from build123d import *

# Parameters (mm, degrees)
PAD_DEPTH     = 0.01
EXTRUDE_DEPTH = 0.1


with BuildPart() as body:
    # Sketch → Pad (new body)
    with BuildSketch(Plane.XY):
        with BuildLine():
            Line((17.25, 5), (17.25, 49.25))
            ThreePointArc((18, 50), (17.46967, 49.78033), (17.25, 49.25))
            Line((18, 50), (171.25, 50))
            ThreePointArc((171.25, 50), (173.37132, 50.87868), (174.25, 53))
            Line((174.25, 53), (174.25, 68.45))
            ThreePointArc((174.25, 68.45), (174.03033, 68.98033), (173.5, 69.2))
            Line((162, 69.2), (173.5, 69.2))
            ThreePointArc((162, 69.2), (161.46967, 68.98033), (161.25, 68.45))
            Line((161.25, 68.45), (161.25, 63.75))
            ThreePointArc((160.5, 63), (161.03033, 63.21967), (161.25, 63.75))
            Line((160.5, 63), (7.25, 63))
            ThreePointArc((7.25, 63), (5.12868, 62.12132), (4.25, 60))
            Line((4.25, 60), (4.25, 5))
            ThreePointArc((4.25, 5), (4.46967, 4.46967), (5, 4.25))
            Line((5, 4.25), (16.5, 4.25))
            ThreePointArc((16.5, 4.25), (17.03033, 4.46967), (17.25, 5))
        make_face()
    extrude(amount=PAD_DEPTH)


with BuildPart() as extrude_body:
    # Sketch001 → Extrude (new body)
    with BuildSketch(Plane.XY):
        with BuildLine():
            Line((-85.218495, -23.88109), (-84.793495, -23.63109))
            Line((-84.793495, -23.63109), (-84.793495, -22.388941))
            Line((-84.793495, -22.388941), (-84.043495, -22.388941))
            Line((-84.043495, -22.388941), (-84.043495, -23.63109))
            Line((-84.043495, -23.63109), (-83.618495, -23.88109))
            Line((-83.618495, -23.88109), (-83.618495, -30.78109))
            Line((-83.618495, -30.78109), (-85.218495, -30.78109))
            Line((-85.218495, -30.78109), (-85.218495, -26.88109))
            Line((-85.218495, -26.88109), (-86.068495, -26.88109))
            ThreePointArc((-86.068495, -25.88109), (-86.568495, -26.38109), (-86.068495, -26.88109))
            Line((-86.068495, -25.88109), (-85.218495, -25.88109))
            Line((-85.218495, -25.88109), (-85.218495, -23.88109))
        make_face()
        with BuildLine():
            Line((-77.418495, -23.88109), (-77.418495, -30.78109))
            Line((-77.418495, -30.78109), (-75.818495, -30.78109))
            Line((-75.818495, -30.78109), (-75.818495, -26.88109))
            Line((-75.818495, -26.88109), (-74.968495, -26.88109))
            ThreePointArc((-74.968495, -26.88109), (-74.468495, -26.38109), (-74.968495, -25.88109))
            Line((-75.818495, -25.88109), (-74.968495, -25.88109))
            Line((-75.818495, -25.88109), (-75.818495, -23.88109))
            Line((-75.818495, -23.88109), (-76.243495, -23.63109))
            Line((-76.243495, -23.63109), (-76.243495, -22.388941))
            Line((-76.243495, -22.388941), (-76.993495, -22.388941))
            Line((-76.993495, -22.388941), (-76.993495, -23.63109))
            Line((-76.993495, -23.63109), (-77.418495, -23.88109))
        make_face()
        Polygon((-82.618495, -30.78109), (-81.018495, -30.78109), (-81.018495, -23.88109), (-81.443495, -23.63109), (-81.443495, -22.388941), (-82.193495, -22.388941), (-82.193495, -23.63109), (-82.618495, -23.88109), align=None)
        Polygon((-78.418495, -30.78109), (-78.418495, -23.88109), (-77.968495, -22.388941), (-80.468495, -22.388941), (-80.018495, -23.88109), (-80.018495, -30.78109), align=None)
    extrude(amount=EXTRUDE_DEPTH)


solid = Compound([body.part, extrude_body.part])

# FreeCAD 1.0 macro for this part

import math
import FreeCAD as App
import Part
import Sketcher

V = App.Vector
Q = App.Units.Quantity


def add_polygon(sketch, points):
    """Adds a closed chain of lines whose ends are joined by coincident constraints."""
    first, n = sketch.GeometryCount, len(points)
    for a, b in zip(points, points[1:] + points[:1]):
        sketch.addGeometry(Part.LineSegment(App.Vector(*a, 0), App.Vector(*b, 0)), False)
    for i in range(n):
        sketch.addConstraint(Sketcher.Constraint("Coincident", first + i, 2, first + (i + 1) % n, 1))

doc = App.newDocument("Part")
params = doc.addObject("Spreadsheet::Sheet", "Params")
for row, (alias, value) in enumerate([
    ("sketch1_radius", "3.000001 mm"),
    ("sketch1_height", "55 mm"),
    ("sketch1_radius2", "0.75 mm"),
    ("sketch1_width", "11.5 mm"),
    ("sketch1_height2", "4.7 mm"),
    ("pad1_length", "0.01 mm"),
    ("sketch2_radius", "0.5 mm"),
    ("sketch2_height", "2 mm"),
    ("sketch2_width", "1.6 mm"),
    ("sketch2_width2", "2.5 mm"),
    ("sketch2_height2", "3.9 mm"),
    ("pad2_length", "0.1 mm"),
], start=1):
    params.set(f"A{row}", alias)
    params.set(f"B{row}", "=" + value)
    params.setAlias(f"B{row}", alias)

body = doc.addObject("PartDesign::Body", "Body")

# Sketch on XY plane
sketch1 = doc.addObject("Sketcher::SketchObject", "Sketch")
body.addObject(sketch1)
sketch1.AttachmentSupport = (doc.XY_Plane, [""])
sketch1.MapMode = "FlatFace"
sketch1.addGeometry([
    Part.LineSegment(V(17.25, 5, 0), V(17.25, 49.25, 0)),  # 0
    Part.ArcOfCircle(Part.Circle(V(18, 49.25, 0), V(0, 0, 1), 0.75), math.radians(90.000022), math.radians(179.999978)),  # 1
    Part.LineSegment(V(18, 50, 0), V(171.25, 50, 0)),  # 2
    Part.ArcOfCircle(Part.Circle(V(171.249999, 53.000001, 0), V(0, 0, 1), 3.000001), math.radians(-89.999978), math.radians(-0.000022)),  # 3
    Part.LineSegment(V(174.25, 53, 0), V(174.25, 68.45, 0)),  # 4
    Part.ArcOfCircle(Part.Circle(V(173.5, 68.45, 0), V(0, 0, 1), 0.75), math.radians(0.000022), math.radians(89.999978)),  # 5
    Part.LineSegment(V(173.5, 69.2, 0), V(162, 69.2, 0)),  # 6
    Part.ArcOfCircle(Part.Circle(V(162, 68.45, 0), V(0, 0, 1), 0.75), math.radians(90.000022), math.radians(179.999978)),  # 7
    Part.LineSegment(V(161.25, 68.45, 0), V(161.25, 63.75, 0)),  # 8
    Part.ArcOfCircle(Part.Circle(V(160.5, 63.75, 0), V(0, 0, 1), 0.75), math.radians(-89.999978), math.radians(-0.000022)),  # 9
    Part.LineSegment(V(160.5, 63, 0), V(7.25, 63, 0)),  # 10
    Part.ArcOfCircle(Part.Circle(V(7.250001, 59.999999, 0), V(0, 0, 1), 3.000001), math.radians(90.000022), math.radians(179.999978)),  # 11
    Part.LineSegment(V(4.25, 60, 0), V(4.25, 5, 0)),  # 12
    Part.ArcOfCircle(Part.Circle(V(5, 5, 0), V(0, 0, 1), 0.75), math.radians(-179.999978), math.radians(-90.000022)),  # 13
    Part.LineSegment(V(5, 4.25, 0), V(16.5, 4.25, 0)),  # 14
    Part.ArcOfCircle(Part.Circle(V(16.5, 5, 0), V(0, 0, 1), 0.75), math.radians(-89.999978), math.radians(-0.000022)),  # 15
], False)
sketch1.addConstraint([
    Sketcher.Constraint("Tangent", 0, 2, 1, 2),
    Sketcher.Constraint("Tangent", 1, 1, 2, 1),
    Sketcher.Constraint("Tangent", 2, 2, 3, 1),
    Sketcher.Constraint("Tangent", 3, 2, 4, 1),
    Sketcher.Constraint("Tangent", 4, 2, 5, 1),
    Sketcher.Constraint("Tangent", 5, 2, 6, 1),
    Sketcher.Constraint("Tangent", 6, 2, 7, 1),
    Sketcher.Constraint("Tangent", 7, 2, 8, 1),
    Sketcher.Constraint("Tangent", 8, 2, 9, 2),
    Sketcher.Constraint("Tangent", 9, 1, 10, 1),
    Sketcher.Constraint("Tangent", 10, 2, 11, 1),
    Sketcher.Constraint("Tangent", 11, 2, 12, 1),
    Sketcher.Constraint("Tangent", 12, 2, 13, 1),
    Sketcher.Constraint("Tangent", 13, 2, 14, 1),
    Sketcher.Constraint("Tangent", 14, 2, 15, 1),
    Sketcher.Constraint("Tangent", 15, 2, 0, 1),
    Sketcher.Constraint("Vertical", 0),
    Sketcher.Constraint("Horizontal", 2),
    Sketcher.Constraint("Vertical", 4),
    Sketcher.Constraint("Horizontal", 6),
    Sketcher.Constraint("Vertical", 8),
    Sketcher.Constraint("Horizontal", 10),
    Sketcher.Constraint("Vertical", 12),
    Sketcher.Constraint("Horizontal", 14),
    Sketcher.Constraint("Equal", 1, 5),
    Sketcher.Constraint("Equal", 5, 7),
    Sketcher.Constraint("Equal", 7, 9),
    Sketcher.Constraint("Equal", 3, 11),
    Sketcher.Constraint("Equal", 9, 13),
    Sketcher.Constraint("Equal", 13, 15),
    Sketcher.Constraint("Equal", 2, 10),
    Sketcher.Constraint("Radius", 3, Q("3.000001 mm")),
    Sketcher.Constraint("DistanceY", 12, 2, 12, 1, Q("55 mm")),
    Sketcher.Constraint("Radius", 1, Q("0.75 mm")),
    Sketcher.Constraint("DistanceX", 6, 2, 6, 1, Q("11.5 mm")),
    Sketcher.Constraint("DistanceY", 8, 2, 8, 1, Q("4.7 mm")),
    Sketcher.Constraint("DistanceX", -1, 1, 1, 3, Q("18 mm")),
    Sketcher.Constraint("DistanceY", -1, 1, 3, 3, Q("53.000001 mm")),
    Sketcher.Constraint("DistanceX", -1, 1, 7, 3, Q("162 mm")),
    Sketcher.Constraint("DistanceY", -1, 1, 11, 3, Q("59.999999 mm")),
])
sketch1.setExpression("Constraints[31]", "Params.sketch1_radius")
sketch1.setExpression("Constraints[32]", "Params.sketch1_height")
sketch1.setExpression("Constraints[33]", "Params.sketch1_radius2")
sketch1.setExpression("Constraints[34]", "Params.sketch1_width")
sketch1.setExpression("Constraints[35]", "Params.sketch1_height2")
pad1 = doc.addObject("PartDesign::Pad", "Pad")
body.addObject(pad1)
pad1.Profile = sketch1
pad1.setExpression("Length", "Params.pad1_length")
body2 = doc.addObject("PartDesign::Body", "Body001")
body2.AllowCompound = True

# Sketch on XY plane
sketch2 = doc.addObject("Sketcher::SketchObject", "Sketch001")
body2.addObject(sketch2)
sketch2.AttachmentSupport = (doc.getObject("XY_Plane001"), [""])
sketch2.MapMode = "FlatFace"
sketch2.addGeometry(Part.LineSegment(V(-84.793495, -23.63109, 0), V(-85.218495, -23.88109, 0)), False)  # 0
sketch2.addGeometry(Part.LineSegment(V(-85.218495, -23.88109, 0), V(-85.218495, -25.88109, 0)), False)  # 1
sketch2.addGeometry(Part.LineSegment(V(-85.218495, -25.88109, 0), V(-86.068495, -25.88109, 0)), False)  # 2
sketch2.addGeometry(Part.ArcOfCircle(Part.Circle(V(-86.068495, -26.38109, 0), V(0, 0, 1), 0.5), math.radians(90), math.radians(270)), False)  # 3
sketch2.addGeometry(Part.LineSegment(V(-86.068495, -26.88109, 0), V(-85.218495, -26.88109, 0)), False)  # 4
sketch2.addGeometry(Part.LineSegment(V(-85.218495, -26.88109, 0), V(-85.218495, -30.78109, 0)), False)  # 5
sketch2.addGeometry(Part.LineSegment(V(-85.218495, -30.78109, 0), V(-83.618495, -30.78109, 0)), False)  # 6
sketch2.addGeometry(Part.LineSegment(V(-83.618495, -30.78109, 0), V(-83.618495, -23.88109, 0)), False)  # 7
sketch2.addGeometry(Part.LineSegment(V(-83.618495, -23.88109, 0), V(-84.043495, -23.63109, 0)), False)  # 8
sketch2.addGeometry(Part.LineSegment(V(-84.043495, -23.63109, 0), V(-84.043495, -22.388941, 0)), False)  # 9
sketch2.addGeometry(Part.LineSegment(V(-84.043495, -22.388941, 0), V(-84.793495, -22.388941, 0)), False)  # 10
sketch2.addGeometry(Part.LineSegment(V(-84.793495, -22.388941, 0), V(-84.793495, -23.63109, 0)), False)  # 11
sketch2.addGeometry(Part.LineSegment(V(-77.418495, -23.88109, 0), V(-77.418495, -30.78109, 0)), False)  # 12
sketch2.addGeometry(Part.LineSegment(V(-77.418495, -30.78109, 0), V(-75.818495, -30.78109, 0)), False)  # 13
sketch2.addGeometry(Part.LineSegment(V(-75.818495, -30.78109, 0), V(-75.818495, -26.88109, 0)), False)  # 14
sketch2.addGeometry(Part.LineSegment(V(-75.818495, -26.88109, 0), V(-74.968495, -26.88109, 0)), False)  # 15
sketch2.addGeometry(Part.ArcOfCircle(Part.Circle(V(-74.968495, -26.38109, 0), V(0, 0, 1), 0.5), math.radians(-90), math.radians(90)), False)  # 16
sketch2.addGeometry(Part.LineSegment(V(-74.968495, -25.88109, 0), V(-75.818495, -25.88109, 0)), False)  # 17
sketch2.addGeometry(Part.LineSegment(V(-75.818495, -25.88109, 0), V(-75.818495, -23.88109, 0)), False)  # 18
sketch2.addGeometry(Part.LineSegment(V(-75.818495, -23.88109, 0), V(-76.243495, -23.63109, 0)), False)  # 19
sketch2.addGeometry(Part.LineSegment(V(-76.243495, -23.63109, 0), V(-76.243495, -22.388941, 0)), False)  # 20
sketch2.addGeometry(Part.LineSegment(V(-76.243495, -22.388941, 0), V(-76.993495, -22.388941, 0)), False)  # 21
sketch2.addGeometry(Part.LineSegment(V(-76.993495, -22.388941, 0), V(-76.993495, -23.63109, 0)), False)  # 22
sketch2.addGeometry(Part.LineSegment(V(-76.993495, -23.63109, 0), V(-77.418495, -23.88109, 0)), False)  # 23
add_polygon(sketch2, [(-82.618495, -30.78109), (-81.018495, -30.78109), (-81.018495, -23.88109), (-81.443495, -23.63109), (-81.443495, -22.388941), (-82.193495, -22.388941), (-82.193495, -23.63109), (-82.618495, -23.88109)])  # lines 24-31
add_polygon(sketch2, [(-78.418495, -30.78109), (-78.418495, -23.88109), (-77.968495, -22.388941), (-80.468495, -22.388941), (-80.018495, -23.88109), (-80.018495, -30.78109)])  # lines 32-37
sketch2.addConstraint([
    Sketcher.Constraint("Coincident", 0, 2, 1, 1),
    Sketcher.Constraint("Coincident", 1, 2, 2, 1),
    Sketcher.Constraint("Tangent", 2, 2, 3, 1),
    Sketcher.Constraint("Tangent", 3, 2, 4, 1),
    Sketcher.Constraint("Coincident", 4, 2, 5, 1),
    Sketcher.Constraint("Coincident", 5, 2, 6, 1),
    Sketcher.Constraint("Coincident", 6, 2, 7, 1),
    Sketcher.Constraint("Coincident", 7, 2, 8, 1),
    Sketcher.Constraint("Coincident", 8, 2, 9, 1),
    Sketcher.Constraint("Coincident", 9, 2, 10, 1),
    Sketcher.Constraint("Coincident", 10, 2, 11, 1),
    Sketcher.Constraint("Coincident", 11, 2, 0, 1),
    Sketcher.Constraint("Coincident", 12, 2, 13, 1),
    Sketcher.Constraint("Coincident", 13, 2, 14, 1),
    Sketcher.Constraint("Coincident", 14, 2, 15, 1),
    Sketcher.Constraint("Tangent", 15, 2, 16, 1),
    Sketcher.Constraint("Tangent", 16, 2, 17, 1),
    Sketcher.Constraint("Coincident", 17, 2, 18, 1),
    Sketcher.Constraint("Coincident", 18, 2, 19, 1),
    Sketcher.Constraint("Coincident", 19, 2, 20, 1),
    Sketcher.Constraint("Coincident", 20, 2, 21, 1),
    Sketcher.Constraint("Coincident", 21, 2, 22, 1),
    Sketcher.Constraint("Coincident", 22, 2, 23, 1),
    Sketcher.Constraint("Coincident", 23, 2, 12, 1),
    Sketcher.Constraint("Vertical", 1),
    Sketcher.Constraint("Horizontal", 2),
    Sketcher.Constraint("Horizontal", 4),
    Sketcher.Constraint("Vertical", 5),
    Sketcher.Constraint("Horizontal", 6),
    Sketcher.Constraint("Vertical", 7),
    Sketcher.Constraint("Vertical", 9),
    Sketcher.Constraint("Horizontal", 10),
    Sketcher.Constraint("Vertical", 11),
    Sketcher.Constraint("Vertical", 12),
    Sketcher.Constraint("Horizontal", 13),
    Sketcher.Constraint("Vertical", 14),
    Sketcher.Constraint("Horizontal", 15),
    Sketcher.Constraint("Horizontal", 17),
    Sketcher.Constraint("Vertical", 18),
    Sketcher.Constraint("Vertical", 20),
    Sketcher.Constraint("Horizontal", 21),
    Sketcher.Constraint("Vertical", 22),
    Sketcher.Constraint("Horizontal", 24),
    Sketcher.Constraint("Vertical", 25),
    Sketcher.Constraint("Vertical", 27),
    Sketcher.Constraint("Horizontal", 28),
    Sketcher.Constraint("Vertical", 29),
    Sketcher.Constraint("Vertical", 31),
    Sketcher.Constraint("Vertical", 32),
    Sketcher.Constraint("Horizontal", 34),
    Sketcher.Constraint("Vertical", 36),
    Sketcher.Constraint("Horizontal", 37),
    Sketcher.Constraint("Equal", 3, 16),
    Sketcher.Constraint("Parallel", 8, 19),
    Sketcher.Constraint("Parallel", 0, 23),
    Sketcher.Constraint("Parallel", 19, 26),
    Sketcher.Constraint("Parallel", 23, 30),
    Sketcher.Constraint("Horizontal", 3, 3, 16, 3),
    Sketcher.Constraint("Horizontal", 0, 2, 7, 2),
    Sketcher.Constraint("Horizontal", 8, 2, 11, 2),
    Sketcher.Constraint("Horizontal", 6, 2, 12, 2),
    Sketcher.Constraint("Horizontal", 7, 2, 18, 2),
    Sketcher.Constraint("Horizontal", 11, 2, 19, 2),
    Sketcher.Constraint("Horizontal", 10, 2, 20, 2),
    Sketcher.Constraint("Horizontal", 19, 2, 22, 2),
    Sketcher.Constraint("Horizontal", 18, 2, 23, 2),
    Sketcher.Constraint("Horizontal", 13, 2, 24, 2),
    Sketcher.Constraint("Horizontal", 23, 2, 25, 2),
    Sketcher.Constraint("Horizontal", 22, 2, 26, 2),
    Sketcher.Constraint("Horizontal", 21, 2, 27, 2),
    Sketcher.Constraint("Horizontal", 26, 2, 29, 2),
    Sketcher.Constraint("Horizontal", 25, 2, 30, 2),
    Sketcher.Constraint("Horizontal", 30, 2, 32, 2),
    Sketcher.Constraint("Horizontal", 28, 2, 33, 2),
    Sketcher.Constraint("Horizontal", 32, 2, 35, 2),
    Sketcher.Constraint("Horizontal", 31, 2, 36, 2),
    Sketcher.Constraint("Vertical", 1, 2, 4, 2),
    Sketcher.Constraint("Vertical", 14, 2, 17, 2),
    Sketcher.Constraint("Equal", 6, 13),
    Sketcher.Constraint("Equal", 4, 15),
    Sketcher.Constraint("Equal", 13, 24),
    Sketcher.Constraint("Equal", 24, 37),
    Sketcher.Constraint("Equal", 0, 8),
    Sketcher.Constraint("Equal", 33, 35),
    Sketcher.Constraint("Radius", 3, Q("0.5 mm")),
    Sketcher.Constraint("DistanceY", 1, 2, 1, 1, Q("2 mm")),
    Sketcher.Constraint("DistanceX", 6, 1, 6, 2, Q("1.6 mm")),
    Sketcher.Constraint("DistanceX", 34, 2, 34, 1, Q("2.5 mm")),
    Sketcher.Constraint("DistanceY", 5, 2, 5, 1, Q("3.9 mm")),
    Sketcher.Constraint("DistanceX", 7, 2, 30, 2, Q("1 mm")),
    Sketcher.Constraint("DistanceX", 32, 2, 23, 2, Q("1 mm")),
    Sketcher.Constraint("DistanceX", 25, 2, 35, 2, Q("1 mm")),
    Sketcher.Constraint("DistanceX", 2, 2, 2, 1, Q("0.85 mm")),
    Sketcher.Constraint("DistanceX", 10, 2, 10, 1, Q("0.75 mm")),
    Sketcher.Constraint("DistanceY", 7, 2, 8, 2, Q("0.25 mm")),
    Sketcher.Constraint("DistanceY", 9, 1, 9, 2, Q("1.242149 mm")),
    Sketcher.Constraint("DistanceY", 3, 3, -1, 1, Q("26.38109 mm")),
    Sketcher.Constraint("DistanceX", 3, 3, -1, 1, Q("86.068495 mm")),
])
sketch2.setExpression("Constraints[98]", "Params.sketch2_radius")
sketch2.setExpression("Constraints[99]", "Params.sketch2_height")
sketch2.setExpression("Constraints[100]", "Params.sketch2_width")
sketch2.setExpression("Constraints[101]", "Params.sketch2_width2")
sketch2.setExpression("Constraints[102]", "Params.sketch2_height2")
pad2 = doc.addObject("PartDesign::Pad", "Pad001")
body2.addObject(pad2)
pad2.Profile = sketch2
pad2.setExpression("Length", "Params.pad2_length")

doc.recompute()
